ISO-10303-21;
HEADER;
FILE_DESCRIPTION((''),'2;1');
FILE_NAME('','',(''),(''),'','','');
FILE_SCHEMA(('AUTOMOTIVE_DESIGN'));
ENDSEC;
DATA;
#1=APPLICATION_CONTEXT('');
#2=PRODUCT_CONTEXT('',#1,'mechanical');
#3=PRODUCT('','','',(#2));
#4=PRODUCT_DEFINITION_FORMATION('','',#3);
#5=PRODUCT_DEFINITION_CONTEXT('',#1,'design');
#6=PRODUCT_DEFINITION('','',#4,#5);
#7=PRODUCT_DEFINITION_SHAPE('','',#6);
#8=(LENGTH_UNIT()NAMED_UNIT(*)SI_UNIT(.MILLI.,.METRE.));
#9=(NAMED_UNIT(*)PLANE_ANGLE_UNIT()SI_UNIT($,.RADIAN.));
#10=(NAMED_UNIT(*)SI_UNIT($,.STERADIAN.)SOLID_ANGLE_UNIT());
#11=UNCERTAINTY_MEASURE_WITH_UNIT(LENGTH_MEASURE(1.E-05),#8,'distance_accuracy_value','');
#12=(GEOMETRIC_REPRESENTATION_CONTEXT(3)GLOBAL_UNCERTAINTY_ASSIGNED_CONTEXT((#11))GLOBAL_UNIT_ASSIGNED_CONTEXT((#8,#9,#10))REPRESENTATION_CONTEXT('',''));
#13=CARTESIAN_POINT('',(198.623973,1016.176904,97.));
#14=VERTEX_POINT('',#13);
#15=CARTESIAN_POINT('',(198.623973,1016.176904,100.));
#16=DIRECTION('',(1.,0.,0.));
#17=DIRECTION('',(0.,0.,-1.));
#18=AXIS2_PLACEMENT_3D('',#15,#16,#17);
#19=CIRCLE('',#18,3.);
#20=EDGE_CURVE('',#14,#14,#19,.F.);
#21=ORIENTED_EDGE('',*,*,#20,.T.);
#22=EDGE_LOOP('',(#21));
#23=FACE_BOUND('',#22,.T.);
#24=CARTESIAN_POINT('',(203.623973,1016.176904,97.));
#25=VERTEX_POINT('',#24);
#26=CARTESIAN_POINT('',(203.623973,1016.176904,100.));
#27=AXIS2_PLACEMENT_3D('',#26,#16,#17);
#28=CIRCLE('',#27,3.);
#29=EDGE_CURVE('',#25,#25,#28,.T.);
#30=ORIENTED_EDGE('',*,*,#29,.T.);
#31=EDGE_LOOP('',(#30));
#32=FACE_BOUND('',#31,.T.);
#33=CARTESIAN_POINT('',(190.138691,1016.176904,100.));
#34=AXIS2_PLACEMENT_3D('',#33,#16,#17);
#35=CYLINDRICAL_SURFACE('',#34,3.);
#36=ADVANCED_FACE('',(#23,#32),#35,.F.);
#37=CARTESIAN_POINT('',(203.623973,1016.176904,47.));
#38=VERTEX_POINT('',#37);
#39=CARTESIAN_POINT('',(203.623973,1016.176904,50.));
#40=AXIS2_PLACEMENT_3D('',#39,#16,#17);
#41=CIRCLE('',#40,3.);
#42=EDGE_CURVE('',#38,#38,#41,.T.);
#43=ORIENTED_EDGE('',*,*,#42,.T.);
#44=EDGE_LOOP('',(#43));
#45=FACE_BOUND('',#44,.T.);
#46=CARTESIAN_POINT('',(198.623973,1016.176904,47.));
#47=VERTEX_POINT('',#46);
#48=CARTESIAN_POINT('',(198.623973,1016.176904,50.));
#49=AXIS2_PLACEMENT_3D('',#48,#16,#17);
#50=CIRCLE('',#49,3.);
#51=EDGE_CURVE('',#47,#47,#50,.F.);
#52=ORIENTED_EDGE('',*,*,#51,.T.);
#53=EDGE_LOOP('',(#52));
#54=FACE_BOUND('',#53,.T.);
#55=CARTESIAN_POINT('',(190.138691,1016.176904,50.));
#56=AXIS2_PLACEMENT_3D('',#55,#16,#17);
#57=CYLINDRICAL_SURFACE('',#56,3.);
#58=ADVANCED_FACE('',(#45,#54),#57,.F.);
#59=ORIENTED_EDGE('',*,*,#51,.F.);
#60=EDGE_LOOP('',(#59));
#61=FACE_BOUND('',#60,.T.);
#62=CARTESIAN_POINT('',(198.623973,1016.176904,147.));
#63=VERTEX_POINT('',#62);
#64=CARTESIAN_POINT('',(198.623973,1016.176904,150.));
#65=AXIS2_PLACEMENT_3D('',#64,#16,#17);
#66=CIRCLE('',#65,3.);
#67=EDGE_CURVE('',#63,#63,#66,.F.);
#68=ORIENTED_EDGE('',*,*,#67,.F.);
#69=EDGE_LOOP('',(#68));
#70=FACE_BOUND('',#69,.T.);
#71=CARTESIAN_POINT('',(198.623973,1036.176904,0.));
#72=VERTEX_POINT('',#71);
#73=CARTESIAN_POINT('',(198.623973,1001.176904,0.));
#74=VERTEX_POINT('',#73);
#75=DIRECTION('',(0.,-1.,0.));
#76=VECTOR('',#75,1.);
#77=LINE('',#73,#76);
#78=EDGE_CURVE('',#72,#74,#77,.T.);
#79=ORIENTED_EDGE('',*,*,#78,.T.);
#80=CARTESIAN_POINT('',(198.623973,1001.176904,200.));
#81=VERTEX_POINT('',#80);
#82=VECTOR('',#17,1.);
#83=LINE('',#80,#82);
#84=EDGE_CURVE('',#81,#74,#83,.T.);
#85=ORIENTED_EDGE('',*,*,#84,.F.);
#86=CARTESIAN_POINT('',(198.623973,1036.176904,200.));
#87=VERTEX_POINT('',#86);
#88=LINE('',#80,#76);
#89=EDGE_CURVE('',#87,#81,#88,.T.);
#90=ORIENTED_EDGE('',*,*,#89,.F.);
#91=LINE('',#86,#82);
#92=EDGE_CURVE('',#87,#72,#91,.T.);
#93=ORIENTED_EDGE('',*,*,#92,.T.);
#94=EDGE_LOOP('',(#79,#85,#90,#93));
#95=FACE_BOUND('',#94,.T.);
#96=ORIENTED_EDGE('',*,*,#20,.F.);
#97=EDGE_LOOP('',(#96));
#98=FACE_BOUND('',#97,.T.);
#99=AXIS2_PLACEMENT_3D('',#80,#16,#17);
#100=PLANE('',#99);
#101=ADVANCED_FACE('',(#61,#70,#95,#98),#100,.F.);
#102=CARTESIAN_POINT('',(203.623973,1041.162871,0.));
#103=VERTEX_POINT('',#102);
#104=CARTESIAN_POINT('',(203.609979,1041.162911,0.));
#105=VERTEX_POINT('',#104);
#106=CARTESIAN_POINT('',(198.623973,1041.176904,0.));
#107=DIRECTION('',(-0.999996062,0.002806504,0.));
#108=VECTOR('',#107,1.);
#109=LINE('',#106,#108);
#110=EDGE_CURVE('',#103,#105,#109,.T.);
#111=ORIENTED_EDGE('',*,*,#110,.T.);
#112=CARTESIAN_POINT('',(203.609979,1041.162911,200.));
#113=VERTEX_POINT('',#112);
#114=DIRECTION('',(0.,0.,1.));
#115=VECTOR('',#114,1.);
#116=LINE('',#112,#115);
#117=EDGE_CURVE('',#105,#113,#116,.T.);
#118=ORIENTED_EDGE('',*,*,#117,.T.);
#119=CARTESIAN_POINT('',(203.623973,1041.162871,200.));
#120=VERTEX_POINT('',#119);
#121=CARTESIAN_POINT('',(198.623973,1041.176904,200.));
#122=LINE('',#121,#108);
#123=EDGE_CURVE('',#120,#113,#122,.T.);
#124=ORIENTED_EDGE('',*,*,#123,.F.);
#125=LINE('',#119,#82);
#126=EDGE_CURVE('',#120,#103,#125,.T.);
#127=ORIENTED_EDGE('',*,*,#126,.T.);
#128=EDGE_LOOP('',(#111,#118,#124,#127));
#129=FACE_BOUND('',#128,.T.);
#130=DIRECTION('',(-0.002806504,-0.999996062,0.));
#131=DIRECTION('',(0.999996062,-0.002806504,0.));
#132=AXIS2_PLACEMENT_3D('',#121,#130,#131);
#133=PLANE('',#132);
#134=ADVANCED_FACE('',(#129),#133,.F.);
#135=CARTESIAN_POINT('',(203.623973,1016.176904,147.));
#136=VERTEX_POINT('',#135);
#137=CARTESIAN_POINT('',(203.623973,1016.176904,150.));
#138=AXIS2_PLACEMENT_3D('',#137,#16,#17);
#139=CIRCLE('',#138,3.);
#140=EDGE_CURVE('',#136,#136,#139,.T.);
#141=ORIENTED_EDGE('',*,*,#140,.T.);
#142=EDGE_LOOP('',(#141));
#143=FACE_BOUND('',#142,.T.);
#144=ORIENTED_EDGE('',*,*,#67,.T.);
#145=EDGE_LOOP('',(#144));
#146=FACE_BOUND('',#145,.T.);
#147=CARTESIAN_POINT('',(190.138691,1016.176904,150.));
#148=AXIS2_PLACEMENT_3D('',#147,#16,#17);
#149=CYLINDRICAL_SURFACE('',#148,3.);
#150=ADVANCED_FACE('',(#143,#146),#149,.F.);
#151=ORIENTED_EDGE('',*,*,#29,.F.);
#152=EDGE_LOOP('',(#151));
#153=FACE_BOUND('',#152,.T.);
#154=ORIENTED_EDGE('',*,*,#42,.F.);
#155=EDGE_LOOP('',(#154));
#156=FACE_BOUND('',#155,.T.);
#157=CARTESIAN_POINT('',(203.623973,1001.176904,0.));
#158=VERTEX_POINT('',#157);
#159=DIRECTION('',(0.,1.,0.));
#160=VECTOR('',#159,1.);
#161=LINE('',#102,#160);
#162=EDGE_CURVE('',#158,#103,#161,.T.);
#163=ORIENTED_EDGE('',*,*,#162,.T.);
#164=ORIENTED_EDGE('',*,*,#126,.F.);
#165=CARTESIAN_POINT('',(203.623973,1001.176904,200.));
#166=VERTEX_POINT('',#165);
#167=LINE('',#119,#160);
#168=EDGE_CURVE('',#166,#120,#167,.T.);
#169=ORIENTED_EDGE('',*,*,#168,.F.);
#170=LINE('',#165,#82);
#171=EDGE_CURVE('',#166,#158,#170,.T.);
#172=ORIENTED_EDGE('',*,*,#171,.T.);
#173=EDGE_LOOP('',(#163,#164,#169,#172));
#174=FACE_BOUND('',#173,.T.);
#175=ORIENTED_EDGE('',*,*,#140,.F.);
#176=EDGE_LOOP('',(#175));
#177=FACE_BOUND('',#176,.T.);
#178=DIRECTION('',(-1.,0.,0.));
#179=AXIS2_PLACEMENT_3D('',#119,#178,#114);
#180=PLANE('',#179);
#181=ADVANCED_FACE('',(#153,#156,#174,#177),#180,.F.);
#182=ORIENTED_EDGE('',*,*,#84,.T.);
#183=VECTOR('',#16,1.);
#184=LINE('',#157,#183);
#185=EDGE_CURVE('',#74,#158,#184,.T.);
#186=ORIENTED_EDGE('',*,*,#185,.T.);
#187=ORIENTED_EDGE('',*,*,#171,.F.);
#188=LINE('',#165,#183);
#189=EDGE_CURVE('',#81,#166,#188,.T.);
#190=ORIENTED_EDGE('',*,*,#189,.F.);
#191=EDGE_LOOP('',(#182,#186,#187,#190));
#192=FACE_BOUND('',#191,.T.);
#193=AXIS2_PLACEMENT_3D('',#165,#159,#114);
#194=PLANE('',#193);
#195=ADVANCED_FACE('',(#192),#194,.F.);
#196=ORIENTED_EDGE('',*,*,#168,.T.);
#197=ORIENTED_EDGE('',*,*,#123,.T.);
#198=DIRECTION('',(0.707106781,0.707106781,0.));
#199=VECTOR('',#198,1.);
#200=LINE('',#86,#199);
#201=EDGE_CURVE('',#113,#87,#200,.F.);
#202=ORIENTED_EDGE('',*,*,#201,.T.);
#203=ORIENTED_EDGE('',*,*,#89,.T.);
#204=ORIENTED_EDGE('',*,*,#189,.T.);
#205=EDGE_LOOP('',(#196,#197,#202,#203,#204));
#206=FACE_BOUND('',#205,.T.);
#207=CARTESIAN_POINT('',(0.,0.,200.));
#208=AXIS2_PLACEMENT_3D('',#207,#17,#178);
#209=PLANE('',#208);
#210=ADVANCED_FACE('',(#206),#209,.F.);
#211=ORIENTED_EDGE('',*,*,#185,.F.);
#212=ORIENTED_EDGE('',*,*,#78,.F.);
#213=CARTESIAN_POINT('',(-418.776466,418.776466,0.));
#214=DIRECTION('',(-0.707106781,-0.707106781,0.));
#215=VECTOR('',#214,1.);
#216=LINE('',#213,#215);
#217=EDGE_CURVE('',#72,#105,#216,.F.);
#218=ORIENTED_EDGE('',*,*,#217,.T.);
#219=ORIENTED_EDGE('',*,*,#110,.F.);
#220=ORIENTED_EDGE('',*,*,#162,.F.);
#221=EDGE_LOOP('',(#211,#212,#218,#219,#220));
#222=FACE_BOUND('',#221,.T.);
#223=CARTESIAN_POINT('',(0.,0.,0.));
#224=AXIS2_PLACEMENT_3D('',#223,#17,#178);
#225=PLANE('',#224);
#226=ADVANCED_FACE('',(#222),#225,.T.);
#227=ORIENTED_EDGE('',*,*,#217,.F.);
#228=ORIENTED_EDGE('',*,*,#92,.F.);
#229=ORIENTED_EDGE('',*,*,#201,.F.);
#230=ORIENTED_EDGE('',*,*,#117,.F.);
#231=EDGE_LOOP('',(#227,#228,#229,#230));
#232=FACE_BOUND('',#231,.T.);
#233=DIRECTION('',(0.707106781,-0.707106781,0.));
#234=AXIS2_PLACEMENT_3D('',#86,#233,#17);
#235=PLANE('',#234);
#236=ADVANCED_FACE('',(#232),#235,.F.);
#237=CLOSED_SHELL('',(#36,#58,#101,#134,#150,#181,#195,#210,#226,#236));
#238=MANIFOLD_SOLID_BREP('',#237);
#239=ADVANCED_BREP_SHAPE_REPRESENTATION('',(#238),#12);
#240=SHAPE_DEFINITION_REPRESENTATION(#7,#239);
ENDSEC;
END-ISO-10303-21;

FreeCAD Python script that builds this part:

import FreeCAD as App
import Part
import Sketcher

V = App.Vector


def edges_at(feature, points):
    """Names of the edges that pass closest to the given points."""
    edges = feature.Shape.Edges
    near = lambda p: min(range(len(edges)), key=lambda i: edges[i].distToShape(Part.Vertex(*p))[0])
    return sorted({f"Edge{near(p) + 1}" for p in points})

doc = App.newDocument("Part")
params = doc.addObject("Spreadsheet::Sheet", "Params")
for row, (alias, value) in enumerate([
    ("sketch1_width", "5 mm"),
    ("sketch1_height", "40 mm"),
    ("pad1_length", "200 mm"),
    ("chamfer_size", "5 mm"),
    ("chamfer_size2", "4.986026 mm"),
    ("sketch2_diameter", "6 mm"),
    ("pocket1_length", "5 mm"),
    ("linearpattern_pitch", "50 mm"),
], start=1):
    params.set(f"A{row}", alias)
    params.set(f"B{row}", "=" + value)
    params.setAlias(f"B{row}", alias)

body = doc.addObject("PartDesign::Body", "Body")

sketch1 = body.newObject("Sketcher::SketchObject", "Sketch")
sketch1.AttachmentSupport = (doc.getObject("XY_Plane"), [""])
sketch1.MapMode = "FlatFace"
sketch1.addGeometry([
    Part.LineSegment(V(199, 1001, 0), V(204, 1001, 0)),
    Part.LineSegment(V(204, 1001, 0), V(204, 1041, 0)),
    Part.LineSegment(V(204, 1041, 0), V(199, 1041, 0)),
    Part.LineSegment(V(199, 1041, 0), V(199, 1001, 0)),
], False)
sketch1.addConstraint([
    Sketcher.Constraint("Coincident", 0, 2, 1, 1),
    Sketcher.Constraint("Coincident", 1, 2, 2, 1),
    Sketcher.Constraint("Coincident", 2, 2, 3, 1),
    Sketcher.Constraint("Coincident", 3, 2, 0, 1),
    Sketcher.Constraint("Horizontal", 0),
    Sketcher.Constraint("Vertical", 1),
    Sketcher.Constraint("Vertical", 3),
    Sketcher.Constraint("DistanceX", 0, 1, 0, 2, 5.0),
    Sketcher.Constraint("DistanceY", 3, 2, 3, 1, 40.0),
    Sketcher.Constraint("DistanceY", 1, 1, 1, 2, 39.985967),
    Sketcher.Constraint("DistanceY", -1, 1, 1, 2, 1041.162871),
    Sketcher.Constraint("DistanceX", -1, 1, 0, 2, 203.623973),
])
sketch1.setExpression("Constraints[7]", "Params.sketch1_width")
sketch1.setExpression("Constraints[8]", "Params.sketch1_height")
pad1 = body.newObject("PartDesign::Pad", "Pad")
pad1.Profile = sketch1
pad1.setExpression("Length", "Params.pad1_length")
doc.recompute()

chamfer = body.newObject("PartDesign::Chamfer", "Chamfer")
chamfer.Base = (pad1, edges_at(pad1, [(198.624, 1041.177, 100)]))
chamfer.ChamferType = "Two distances"
chamfer.setExpression("Size", "Params.chamfer_size")
chamfer.setExpression("Size2", "Params.chamfer_size2")

sketch2 = body.newObject("Sketcher::SketchObject", "Sketch001")
sketch2.AttachmentSupport = (doc.getObject("YZ_Plane"), [""])
sketch2.MapMode = "FlatFace"
sketch2.AttachmentOffset = App.Placement(V(0, 0, 203.623973), App.Rotation())
sketch2.addGeometry(Part.Circle(V(1016.2, 50, 0), V(0, 0, 1), 3), False)
sketch2.addConstraint([
    Sketcher.Constraint("Diameter", 0, 6.0),
    Sketcher.Constraint("DistanceY", -1, 1, 0, 3, 50.0),
    Sketcher.Constraint("DistanceX", -1, 1, 0, 3, 1016.176904),
])
sketch2.setExpression("Constraints[0]", "Params.sketch2_diameter")
pocket1 = body.newObject("PartDesign::Pocket", "Pocket")
pocket1.Profile = sketch2
pocket1.setExpression("Length", "Params.pocket1_length")
doc.recompute()

linearpattern = body.newObject("PartDesign::LinearPattern", "LinearPattern")
linearpattern.Originals = [pocket1]
linearpattern.Direction = (doc.getObject("Z_Axis"), [""])
linearpattern.Mode = "offset"
linearpattern.setExpression("Offset", "Params.linearpattern_pitch")
linearpattern.Occurrences = 3
body.Tip = linearpattern

doc.recompute()
